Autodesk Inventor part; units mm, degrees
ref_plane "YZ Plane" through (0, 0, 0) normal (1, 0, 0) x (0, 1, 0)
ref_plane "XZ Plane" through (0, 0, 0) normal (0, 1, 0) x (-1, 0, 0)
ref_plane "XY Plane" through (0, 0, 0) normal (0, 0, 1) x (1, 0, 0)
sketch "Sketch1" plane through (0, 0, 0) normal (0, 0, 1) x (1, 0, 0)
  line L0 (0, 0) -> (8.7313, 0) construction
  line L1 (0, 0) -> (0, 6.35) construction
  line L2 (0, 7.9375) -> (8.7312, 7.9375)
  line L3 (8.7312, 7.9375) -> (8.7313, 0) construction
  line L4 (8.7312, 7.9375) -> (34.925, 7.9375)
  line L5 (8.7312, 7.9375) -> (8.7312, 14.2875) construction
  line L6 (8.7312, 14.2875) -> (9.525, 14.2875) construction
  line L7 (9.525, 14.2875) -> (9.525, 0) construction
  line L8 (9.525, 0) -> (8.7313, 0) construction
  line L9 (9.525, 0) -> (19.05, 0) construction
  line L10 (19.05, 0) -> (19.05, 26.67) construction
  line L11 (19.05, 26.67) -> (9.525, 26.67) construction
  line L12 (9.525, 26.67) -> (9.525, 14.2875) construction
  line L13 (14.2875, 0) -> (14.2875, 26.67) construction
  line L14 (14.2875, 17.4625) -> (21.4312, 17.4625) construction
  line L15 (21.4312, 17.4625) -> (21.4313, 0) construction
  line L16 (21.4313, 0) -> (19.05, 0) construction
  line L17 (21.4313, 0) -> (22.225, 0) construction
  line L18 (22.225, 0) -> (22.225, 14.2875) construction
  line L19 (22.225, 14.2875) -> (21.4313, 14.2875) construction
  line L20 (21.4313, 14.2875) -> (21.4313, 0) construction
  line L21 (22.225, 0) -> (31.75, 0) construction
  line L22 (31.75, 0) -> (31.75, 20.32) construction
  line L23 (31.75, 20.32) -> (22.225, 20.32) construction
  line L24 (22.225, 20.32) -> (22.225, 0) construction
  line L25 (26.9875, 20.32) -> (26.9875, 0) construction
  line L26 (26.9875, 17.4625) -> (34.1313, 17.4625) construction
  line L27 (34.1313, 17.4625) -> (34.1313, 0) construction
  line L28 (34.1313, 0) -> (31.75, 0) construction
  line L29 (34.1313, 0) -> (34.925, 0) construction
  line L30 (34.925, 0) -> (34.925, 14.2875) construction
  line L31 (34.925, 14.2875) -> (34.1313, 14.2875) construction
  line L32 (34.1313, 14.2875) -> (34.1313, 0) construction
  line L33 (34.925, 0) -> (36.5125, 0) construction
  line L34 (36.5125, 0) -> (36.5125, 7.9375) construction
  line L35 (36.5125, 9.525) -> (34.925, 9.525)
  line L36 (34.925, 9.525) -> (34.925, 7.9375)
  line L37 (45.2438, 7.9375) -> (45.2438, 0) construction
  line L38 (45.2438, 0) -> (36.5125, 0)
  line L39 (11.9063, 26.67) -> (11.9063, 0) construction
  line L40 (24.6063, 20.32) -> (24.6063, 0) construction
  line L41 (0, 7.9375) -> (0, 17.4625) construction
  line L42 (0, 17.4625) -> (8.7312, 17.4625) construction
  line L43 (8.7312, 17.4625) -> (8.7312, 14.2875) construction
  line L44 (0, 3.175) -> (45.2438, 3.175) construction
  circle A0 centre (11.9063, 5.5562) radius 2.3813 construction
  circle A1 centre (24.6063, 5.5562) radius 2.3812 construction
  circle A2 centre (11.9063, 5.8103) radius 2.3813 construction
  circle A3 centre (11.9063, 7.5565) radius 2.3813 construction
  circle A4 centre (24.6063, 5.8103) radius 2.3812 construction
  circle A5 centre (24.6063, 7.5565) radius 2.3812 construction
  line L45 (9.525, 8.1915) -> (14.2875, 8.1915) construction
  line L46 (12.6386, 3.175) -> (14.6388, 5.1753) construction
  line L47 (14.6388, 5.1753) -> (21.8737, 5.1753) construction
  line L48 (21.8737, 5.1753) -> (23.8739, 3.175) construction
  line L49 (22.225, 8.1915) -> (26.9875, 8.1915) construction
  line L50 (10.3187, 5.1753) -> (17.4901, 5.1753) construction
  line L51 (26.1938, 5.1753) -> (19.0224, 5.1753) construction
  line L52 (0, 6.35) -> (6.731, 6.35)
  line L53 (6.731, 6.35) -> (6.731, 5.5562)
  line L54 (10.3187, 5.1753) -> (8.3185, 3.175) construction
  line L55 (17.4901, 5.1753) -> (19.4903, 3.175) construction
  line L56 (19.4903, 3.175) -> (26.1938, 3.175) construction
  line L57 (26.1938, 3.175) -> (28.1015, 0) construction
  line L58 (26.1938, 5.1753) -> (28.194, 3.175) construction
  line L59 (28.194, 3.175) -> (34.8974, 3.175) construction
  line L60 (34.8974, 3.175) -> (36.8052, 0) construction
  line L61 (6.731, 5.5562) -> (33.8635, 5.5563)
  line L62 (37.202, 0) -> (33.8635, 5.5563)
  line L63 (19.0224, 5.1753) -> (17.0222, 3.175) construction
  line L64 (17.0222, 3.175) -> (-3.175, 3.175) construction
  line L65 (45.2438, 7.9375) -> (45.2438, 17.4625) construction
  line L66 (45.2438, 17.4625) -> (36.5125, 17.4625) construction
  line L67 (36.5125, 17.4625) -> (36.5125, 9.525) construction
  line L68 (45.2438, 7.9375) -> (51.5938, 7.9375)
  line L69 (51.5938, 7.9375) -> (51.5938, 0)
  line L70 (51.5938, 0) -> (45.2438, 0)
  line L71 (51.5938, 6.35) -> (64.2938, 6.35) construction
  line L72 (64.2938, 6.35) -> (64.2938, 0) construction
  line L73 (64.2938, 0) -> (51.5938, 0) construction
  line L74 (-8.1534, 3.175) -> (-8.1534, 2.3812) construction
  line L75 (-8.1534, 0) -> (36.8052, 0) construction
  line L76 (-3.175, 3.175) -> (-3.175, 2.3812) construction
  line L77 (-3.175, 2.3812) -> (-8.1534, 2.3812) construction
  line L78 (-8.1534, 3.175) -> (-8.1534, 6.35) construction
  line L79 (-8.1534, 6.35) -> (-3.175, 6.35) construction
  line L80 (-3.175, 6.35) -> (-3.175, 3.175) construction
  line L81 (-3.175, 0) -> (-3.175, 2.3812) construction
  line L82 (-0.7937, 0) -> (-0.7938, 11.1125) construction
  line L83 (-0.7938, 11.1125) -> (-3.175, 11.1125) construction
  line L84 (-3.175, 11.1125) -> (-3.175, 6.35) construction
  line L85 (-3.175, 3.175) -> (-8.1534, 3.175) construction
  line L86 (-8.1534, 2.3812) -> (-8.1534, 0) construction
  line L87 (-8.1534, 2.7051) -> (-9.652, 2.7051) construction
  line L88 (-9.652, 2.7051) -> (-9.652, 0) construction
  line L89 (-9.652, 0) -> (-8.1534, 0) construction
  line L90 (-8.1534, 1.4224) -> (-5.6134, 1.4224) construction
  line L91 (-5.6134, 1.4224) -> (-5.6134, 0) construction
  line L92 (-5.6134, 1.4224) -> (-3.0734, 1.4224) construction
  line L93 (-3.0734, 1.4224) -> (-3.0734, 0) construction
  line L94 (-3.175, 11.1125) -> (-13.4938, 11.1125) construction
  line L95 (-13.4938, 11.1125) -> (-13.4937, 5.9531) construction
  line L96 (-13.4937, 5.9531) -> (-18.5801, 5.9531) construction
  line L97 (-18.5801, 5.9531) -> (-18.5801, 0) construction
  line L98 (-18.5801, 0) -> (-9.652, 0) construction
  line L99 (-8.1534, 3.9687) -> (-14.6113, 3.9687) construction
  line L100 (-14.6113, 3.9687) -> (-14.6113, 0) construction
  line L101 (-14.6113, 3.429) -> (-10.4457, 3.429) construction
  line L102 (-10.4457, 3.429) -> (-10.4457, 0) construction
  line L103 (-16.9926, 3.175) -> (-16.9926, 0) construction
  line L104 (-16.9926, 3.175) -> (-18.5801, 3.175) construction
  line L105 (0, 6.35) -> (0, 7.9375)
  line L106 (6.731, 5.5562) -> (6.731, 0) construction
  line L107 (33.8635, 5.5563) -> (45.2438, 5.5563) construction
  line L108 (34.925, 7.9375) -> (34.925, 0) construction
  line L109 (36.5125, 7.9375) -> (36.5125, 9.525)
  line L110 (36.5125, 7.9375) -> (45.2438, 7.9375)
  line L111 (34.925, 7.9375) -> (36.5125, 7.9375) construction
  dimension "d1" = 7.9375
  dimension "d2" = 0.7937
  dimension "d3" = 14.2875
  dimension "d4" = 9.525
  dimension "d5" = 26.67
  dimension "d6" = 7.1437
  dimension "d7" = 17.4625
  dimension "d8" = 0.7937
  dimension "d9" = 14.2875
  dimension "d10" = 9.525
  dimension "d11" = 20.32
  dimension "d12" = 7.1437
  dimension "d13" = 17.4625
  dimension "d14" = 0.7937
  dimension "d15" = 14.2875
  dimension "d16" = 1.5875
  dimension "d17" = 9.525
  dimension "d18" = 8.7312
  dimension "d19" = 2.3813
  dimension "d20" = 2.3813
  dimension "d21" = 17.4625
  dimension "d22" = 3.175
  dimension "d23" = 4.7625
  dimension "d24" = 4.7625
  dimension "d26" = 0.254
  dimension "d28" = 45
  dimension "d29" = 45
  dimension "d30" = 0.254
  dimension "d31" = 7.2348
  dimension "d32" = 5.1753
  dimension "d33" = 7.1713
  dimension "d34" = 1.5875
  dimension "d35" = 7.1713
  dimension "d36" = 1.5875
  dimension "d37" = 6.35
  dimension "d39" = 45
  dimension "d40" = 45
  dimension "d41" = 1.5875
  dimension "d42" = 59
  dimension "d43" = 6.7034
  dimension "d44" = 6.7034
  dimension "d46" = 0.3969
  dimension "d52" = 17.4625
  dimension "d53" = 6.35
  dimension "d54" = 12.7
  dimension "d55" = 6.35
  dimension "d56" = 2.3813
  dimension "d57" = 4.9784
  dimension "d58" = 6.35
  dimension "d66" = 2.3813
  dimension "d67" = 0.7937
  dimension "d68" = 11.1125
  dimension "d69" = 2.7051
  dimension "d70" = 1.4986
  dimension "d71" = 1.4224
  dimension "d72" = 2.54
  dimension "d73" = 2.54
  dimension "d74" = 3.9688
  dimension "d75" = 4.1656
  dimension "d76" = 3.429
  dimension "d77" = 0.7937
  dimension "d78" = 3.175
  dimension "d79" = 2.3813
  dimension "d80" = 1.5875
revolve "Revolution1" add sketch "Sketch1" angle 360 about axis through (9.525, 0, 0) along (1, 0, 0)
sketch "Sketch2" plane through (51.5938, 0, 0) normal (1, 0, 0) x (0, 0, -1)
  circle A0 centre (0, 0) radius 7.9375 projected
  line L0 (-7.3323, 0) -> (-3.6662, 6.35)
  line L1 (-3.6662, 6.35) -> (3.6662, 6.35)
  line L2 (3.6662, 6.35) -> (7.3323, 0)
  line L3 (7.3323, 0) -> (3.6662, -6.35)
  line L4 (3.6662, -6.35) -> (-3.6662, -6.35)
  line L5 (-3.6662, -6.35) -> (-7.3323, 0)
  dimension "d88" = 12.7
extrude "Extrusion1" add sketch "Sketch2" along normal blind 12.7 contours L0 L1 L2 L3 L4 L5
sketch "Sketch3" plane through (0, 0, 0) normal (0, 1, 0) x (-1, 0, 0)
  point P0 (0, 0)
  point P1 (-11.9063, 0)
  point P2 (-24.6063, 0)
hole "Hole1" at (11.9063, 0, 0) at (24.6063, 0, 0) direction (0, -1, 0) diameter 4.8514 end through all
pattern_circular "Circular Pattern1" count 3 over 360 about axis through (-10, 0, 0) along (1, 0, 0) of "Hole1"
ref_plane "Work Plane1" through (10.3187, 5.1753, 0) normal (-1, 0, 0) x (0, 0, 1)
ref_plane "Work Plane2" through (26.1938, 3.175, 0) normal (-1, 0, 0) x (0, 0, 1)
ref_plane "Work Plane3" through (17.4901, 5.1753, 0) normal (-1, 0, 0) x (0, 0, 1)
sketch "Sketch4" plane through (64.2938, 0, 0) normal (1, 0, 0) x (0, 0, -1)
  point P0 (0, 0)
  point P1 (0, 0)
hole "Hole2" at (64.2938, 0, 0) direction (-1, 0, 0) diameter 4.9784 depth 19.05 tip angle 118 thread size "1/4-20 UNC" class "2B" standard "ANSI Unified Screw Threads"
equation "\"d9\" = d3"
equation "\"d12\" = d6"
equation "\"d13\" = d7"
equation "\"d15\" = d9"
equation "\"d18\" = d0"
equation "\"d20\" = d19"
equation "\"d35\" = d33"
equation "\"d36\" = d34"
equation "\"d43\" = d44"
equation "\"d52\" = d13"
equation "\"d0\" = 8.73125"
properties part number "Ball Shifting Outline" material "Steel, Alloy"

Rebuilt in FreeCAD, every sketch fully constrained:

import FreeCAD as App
import Part
import Sketcher

V = App.Vector
Q = App.Units.Quantity

doc = App.newDocument("Part")
body = doc.addObject("PartDesign::Body", "Body")

sketch1 = body.newObject("Sketcher::SketchObject", "Sketch")
sketch1.AttachmentSupport = (doc.getObject("XY_Plane"), [""])
sketch1.MapMode = "FlatFace"
sketch1.addGeometry([
    Part.LineSegment(V(34.9, 7.9, 0), V(0, 7.9, 0)),
    Part.LineSegment(V(0, 7.9, 0), V(0, 6.3, 0)),
    Part.LineSegment(V(0, 6.3, 0), V(6.7, 6.3, 0)),
    Part.LineSegment(V(6.7, 6.3, 0), V(6.7, 5.6, 0)),
    Part.LineSegment(V(6.7, 5.6, 0), V(33.9, 5.6, 0)),
    Part.LineSegment(V(33.9, 5.6, 0), V(37.2, 0, 0)),
    Part.LineSegment(V(37.2, 0, 0), V(51.6, 0, 0)),
    Part.LineSegment(V(51.6, 0, 0), V(51.6, 7.9, 0)),
    Part.LineSegment(V(51.6, 7.9, 0), V(36.5, 7.9, 0)),
    Part.LineSegment(V(36.5, 7.9, 0), V(36.5, 9.5, 0)),
    Part.LineSegment(V(36.5, 9.5, 0), V(34.9, 9.5, 0)),
    Part.LineSegment(V(34.9, 9.5, 0), V(34.9, 7.9, 0)),
], False)
sketch1.addConstraint([
    Sketcher.Constraint("Coincident", 0, 2, 1, 1),
    Sketcher.Constraint("Coincident", 1, 2, 2, 1),
    Sketcher.Constraint("Coincident", 2, 2, 3, 1),
    Sketcher.Constraint("Coincident", 3, 2, 4, 1),
    Sketcher.Constraint("Coincident", 4, 2, 5, 1),
    Sketcher.Constraint("Coincident", 5, 2, 6, 1),
    Sketcher.Constraint("Coincident", 6, 2, 7, 1),
    Sketcher.Constraint("Coincident", 7, 2, 8, 1),
    Sketcher.Constraint("Coincident", 8, 2, 9, 1),
    Sketcher.Constraint("Coincident", 9, 2, 10, 1),
    Sketcher.Constraint("Coincident", 10, 2, 11, 1),
    Sketcher.Constraint("Coincident", 11, 2, 0, 1),
    Sketcher.Constraint("Horizontal", 0),
    Sketcher.Constraint("Vertical", 1),
    Sketcher.Constraint("Horizontal", 2),
    Sketcher.Constraint("Vertical", 3),
    Sketcher.Constraint("Horizontal", 4),
    Sketcher.Constraint("Horizontal", 6),
    Sketcher.Constraint("Vertical", 7),
    Sketcher.Constraint("Horizontal", 8),
    Sketcher.Constraint("Vertical", 9),
    Sketcher.Constraint("Horizontal", 10),
    Sketcher.Constraint("Vertical", 11),
    Sketcher.Constraint("PointOnObject", 0, 2, -2),
    Sketcher.Constraint("PointOnObject", 5, 2, -1),
    Sketcher.Constraint("Horizontal", 0, 2, 7, 2),
    Sketcher.Constraint("Equal", 10, 1),
    Sketcher.Constraint("Equal", 1, 9),
    Sketcher.Constraint("Angle", 5, Q("-59.0005 deg")),
    Sketcher.Constraint("DistanceX", 10, 2, 10, 1, Q("0.0625 in")),
    Sketcher.Constraint("DistanceY", 3, 2, 3, 1, Q("0.031252 in")),
    Sketcher.Constraint("DistanceY", 7, 1, 7, 2, Q("0.3125 in")),
    Sketcher.Constraint("DistanceX", 0, 2, 0, 1, Q("1.375 in")),
    Sketcher.Constraint("DistanceX", 2, 1, 2, 2, Q("0.265 in")),
    Sketcher.Constraint("DistanceX", 8, 2, 8, 1, Q("0.593752 in")),
    Sketcher.Constraint("DistanceX", 4, 1, 4, 2, Q("1.0682 in")),
])
revolution = body.newObject("PartDesign::Revolution", "Revolution")
revolution.Profile = sketch1
revolution.ReferenceAxis = (sketch1, ["H_Axis"])
revolution.Angle = 360

sketch2 = body.newObject("Sketcher::SketchObject", "Sketch001")
sketch2.AttachmentSupport = (doc.getObject("YZ_Plane"), [""])
sketch2.MapMode = "FlatFace"
sketch2.AttachmentOffset = App.Placement(V(0, 0, 2.031252 * 25.4), App.Rotation())
sketch2.addGeometry([
    Part.LineSegment(V(6, 4, 0), V(0, 7, 0)),
    Part.LineSegment(V(0, 7, 0), V(-6, 4, 0)),
    Part.LineSegment(V(-6, 4, 0), V(-6, -4, 0)),
    Part.LineSegment(V(-6, -4, 0), V(0, -7, 0)),
    Part.LineSegment(V(0, -7, 0), V(6, -4, 0)),
    Part.LineSegment(V(6, -4, 0), V(6, 4, 0)),
], False)
sketch2.addConstraint([
    Sketcher.Constraint("Coincident", 0, 2, 1, 1),
    Sketcher.Constraint("Coincident", 1, 2, 2, 1),
    Sketcher.Constraint("Coincident", 2, 2, 3, 1),
    Sketcher.Constraint("Coincident", 3, 2, 4, 1),
    Sketcher.Constraint("Coincident", 4, 2, 5, 1),
    Sketcher.Constraint("Coincident", 5, 2, 0, 1),
    Sketcher.Constraint("Vertical", 2),
    Sketcher.Constraint("Vertical", 5),
    Sketcher.Constraint("Symmetric", 0, 2, 3, 2, -1, 1),
    Sketcher.Constraint("Symmetric", 1, 2, 4, 2, -1, 1),
    Sketcher.Constraint("PointOnObject", 0, 2, -2),
    Sketcher.Constraint("Parallel", 0, 3),
    Sketcher.Constraint("Horizontal", 2, 2, 4, 2),
    Sketcher.Constraint("DistanceX", 2, 2, 4, 2, Q("0.5 in")),
    Sketcher.Constraint("Angle", 0, Q("150.0005 deg")),
    Sketcher.Constraint("DistanceY", 2, 2, 0, 2, Q("0.433 in")),
])
pad1 = body.newObject("PartDesign::Pad", "Pad")
pad1.Profile = sketch2
pad1.Length = Q("0.5 in")

sketch3 = body.newObject("Sketcher::SketchObject", "Sketch002")
sketch3.AttachmentSupport = (doc.getObject("XZ_Plane"), [""])
sketch3.MapMode = "FlatFace"
sketch3.addGeometry([
    Part.Circle(V(11.9, 0, 0), V(0, 0, 1), 2.4),
    Part.Circle(V(24.6, 0, 0), V(0, 0, 1), 2.4),
], False)
sketch3.addConstraint([
    Sketcher.Constraint("Equal", 0, 1),
    Sketcher.Constraint("PointOnObject", 0, 3, -1),
    Sketcher.Constraint("PointOnObject", 1, 3, -1),
    Sketcher.Constraint("Diameter", 0, Q("0.191 in")),
    Sketcher.Constraint("DistanceX", 0, 3, 1, 3, Q("0.5 in")),
    Sketcher.Constraint("DistanceX", -1, 1, 0, 3, Q("0.468752 in")),
])
doc.recompute()
hole = body.newObject("PartDesign::Hole", "Hole")
hole.Profile = sketch3
hole.ThreadType = "None"
hole.Diameter = Q("0.191 in")
hole.DepthType = "ThroughAll"
hole.Reversed = True
doc.recompute()

polarpattern = body.newObject("PartDesign::PolarPattern", "PolarPattern")
polarpattern.Originals = [hole]
polarpattern.Axis = (doc.getObject("X_Axis"), [""])
polarpattern.Angle = 360
polarpattern.Occurrences = 3
body.Tip = polarpattern

sketch4 = body.newObject("Sketcher::SketchObject", "Sketch003")
sketch4.AttachmentSupport = (doc.getObject("YZ_Plane"), [""])
sketch4.MapMode = "FlatFace"
sketch4.AttachmentOffset = App.Placement(V(0, 0, 2.531252 * 25.4), App.Rotation())
sketch4.addGeometry(Part.Circle(V(0, 0, 0), V(0, 0, 1), 2.5), False)
sketch4.addConstraint([
    Sketcher.Constraint("Coincident", 0, 3, -1, 1),
    Sketcher.Constraint("Diameter", 0, Q("0.196 in")),
])
doc.recompute()
hole2 = body.newObject("PartDesign::Hole", "Hole001")
hole2.Profile = sketch4
hole2.ThreadType = "None"
hole2.Diameter = Q("0.196 in")
hole2.DepthType = "Dimension"
hole2.Depth = Q("0.75 in")
hole2.DrillPoint = "Angled"
hole2.DrillPointAngle = 118

doc.recompute()
